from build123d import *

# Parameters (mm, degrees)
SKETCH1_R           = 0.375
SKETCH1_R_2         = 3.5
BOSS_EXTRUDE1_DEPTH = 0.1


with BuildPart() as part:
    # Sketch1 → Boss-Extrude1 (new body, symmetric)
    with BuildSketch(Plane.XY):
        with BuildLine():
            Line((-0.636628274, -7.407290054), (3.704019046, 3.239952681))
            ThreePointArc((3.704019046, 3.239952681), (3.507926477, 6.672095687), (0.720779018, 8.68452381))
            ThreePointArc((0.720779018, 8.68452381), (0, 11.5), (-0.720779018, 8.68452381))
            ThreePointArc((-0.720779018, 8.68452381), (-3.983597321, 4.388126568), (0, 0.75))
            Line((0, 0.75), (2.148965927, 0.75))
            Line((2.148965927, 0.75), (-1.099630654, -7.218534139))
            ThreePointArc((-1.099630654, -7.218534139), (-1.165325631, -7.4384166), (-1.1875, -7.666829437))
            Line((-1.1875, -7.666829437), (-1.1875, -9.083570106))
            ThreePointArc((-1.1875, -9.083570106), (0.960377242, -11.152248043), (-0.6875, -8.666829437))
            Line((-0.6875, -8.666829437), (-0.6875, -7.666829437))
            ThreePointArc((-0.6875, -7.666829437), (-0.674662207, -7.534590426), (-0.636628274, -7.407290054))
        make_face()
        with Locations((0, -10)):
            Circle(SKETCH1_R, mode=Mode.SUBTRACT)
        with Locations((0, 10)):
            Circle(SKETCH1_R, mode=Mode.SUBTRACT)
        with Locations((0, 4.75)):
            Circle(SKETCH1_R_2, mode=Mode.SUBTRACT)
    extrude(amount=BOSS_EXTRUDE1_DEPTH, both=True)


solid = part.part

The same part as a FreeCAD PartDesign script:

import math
import FreeCAD as App
import Part
import Sketcher
from FreeCAD import Vector

doc = App.newDocument("Part")
body = doc.addObject("PartDesign::Body", "Body")

sketch1 = doc.addObject("Sketcher::SketchObject", "Sketch")
body.addObject(sketch1)
sketch1.AttachmentSupport = (doc.XY_Plane, [""])
sketch1.MapMode = "FlatFace"
sketch1.addGeometry([
    Part.LineSegment(Vector(-0.64, -7.41, 0), Vector(3.7, 3.24, 0)),
    Part.ArcOfCircle(Part.Circle(Vector(0, 4.75, 0), Vector(0, 0, 1), 4), math.radians(-22), math.radians(80)),
    Part.ArcOfCircle(Part.Circle(Vector(0, 10, 0), Vector(0, 0, 1), 1.5), math.radians(-61), math.radians(241)),
    Part.ArcOfCircle(Part.Circle(Vector(0, 4.75, 0), Vector(0, 0, 1), 4), math.radians(100), math.radians(270)),
    Part.LineSegment(Vector(0, 0.75, 0), Vector(2.15, 0.75, 0)),
    Part.LineSegment(Vector(2.15, 0.75, 0), Vector(-1.1, -7.22, 0)),
    Part.ArcOfCircle(Part.Circle(Vector(0, -7.67, 0), Vector(0, 0, 1), 1.19), math.radians(158), math.radians(180)),
    Part.LineSegment(Vector(-1.19, -7.67, 0), Vector(-1.19, -9.08, 0)),
    Part.ArcOfCircle(Part.Circle(Vector(0, -10, 0), Vector(0, 0, 1), 1.5), math.radians(142), math.radians(477)),
    Part.LineSegment(Vector(-0.69, -8.67, 0), Vector(-0.69, -7.67, 0)),
    Part.ArcOfCircle(Part.Circle(Vector(0, -7.67, 0), Vector(0, 0, 1), 0.69), math.radians(158), math.radians(180)),
    Part.Circle(Vector(0, -10, 0), Vector(0, 0, 1), 0.38),
    Part.Circle(Vector(0, 4.75, 0), Vector(0, 0, 1), 3.5),
    Part.Circle(Vector(0, 10, 0), Vector(0, 0, 1), 0.38),
], False)
sketch1.addConstraint([
    Sketcher.Constraint("Tangent", 0, 2, 1, 1),
    Sketcher.Constraint("Coincident", 1, 2, 2, 1),
    Sketcher.Constraint("Coincident", 2, 2, 3, 1),
    Sketcher.Constraint("Tangent", 3, 2, 4, 1),
    Sketcher.Constraint("Coincident", 4, 2, 5, 1),
    Sketcher.Constraint("Tangent", 5, 2, 6, 1),
    Sketcher.Constraint("Tangent", 6, 2, 7, 1),
    Sketcher.Constraint("Coincident", 7, 2, 8, 1),
    Sketcher.Constraint("Coincident", 8, 2, 9, 1),
    Sketcher.Constraint("Tangent", 9, 2, 10, 2),
    Sketcher.Constraint("Tangent", 10, 1, 0, 1),
    Sketcher.Constraint("Horizontal", 4),
    Sketcher.Constraint("Vertical", 7),
    Sketcher.Constraint("Vertical", 9),
    Sketcher.Constraint("Coincident", 3, 3, 1, 3),
    Sketcher.Constraint("Coincident", 10, 3, 6, 3),
    Sketcher.Constraint("Coincident", 11, 3, 8, 3),
    Sketcher.Constraint("Coincident", 12, 3, 1, 3),
    Sketcher.Constraint("Coincident", 13, 3, 2, 3),
    Sketcher.Constraint("Equal", 1, 3),
    Sketcher.Constraint("Equal", 2, 8),
    Sketcher.Constraint("Equal", 11, 13),
    Sketcher.Constraint("Symmetric", 2, 3, 8, 3, -1, 1),
    Sketcher.Constraint("Symmetric", 1, 2, 2, 2, -2),
    Sketcher.Constraint("PointOnObject", 6, 3, -2),
    Sketcher.Constraint("Parallel", 0, 5),
    Sketcher.Constraint("Diameter", 12, 7.0),
    Sketcher.Constraint("Radius", 1, 4.0),
    Sketcher.Constraint("Radius", 2, 1.5),
    Sketcher.Constraint("Diameter", 11, 0.75),
    Sketcher.Constraint("DistanceY", 9, 1, 9, 2, 1.0),
    Sketcher.Constraint("DistanceY", -1, 1, 2, 3, 10.0),
    Sketcher.Constraint("Radius", 6, 1.1875),
    Sketcher.Constraint("Radius", 10, 0.6875),
    Sketcher.Constraint("DistanceY", -1, 1, 1, 3, 4.75),
])
pad1 = doc.addObject("PartDesign::Pad", "Pad")
body.addObject(pad1)
pad1.Profile = sketch1
pad1.Length = 0.2
pad1.Midplane = True

doc.recompute()
